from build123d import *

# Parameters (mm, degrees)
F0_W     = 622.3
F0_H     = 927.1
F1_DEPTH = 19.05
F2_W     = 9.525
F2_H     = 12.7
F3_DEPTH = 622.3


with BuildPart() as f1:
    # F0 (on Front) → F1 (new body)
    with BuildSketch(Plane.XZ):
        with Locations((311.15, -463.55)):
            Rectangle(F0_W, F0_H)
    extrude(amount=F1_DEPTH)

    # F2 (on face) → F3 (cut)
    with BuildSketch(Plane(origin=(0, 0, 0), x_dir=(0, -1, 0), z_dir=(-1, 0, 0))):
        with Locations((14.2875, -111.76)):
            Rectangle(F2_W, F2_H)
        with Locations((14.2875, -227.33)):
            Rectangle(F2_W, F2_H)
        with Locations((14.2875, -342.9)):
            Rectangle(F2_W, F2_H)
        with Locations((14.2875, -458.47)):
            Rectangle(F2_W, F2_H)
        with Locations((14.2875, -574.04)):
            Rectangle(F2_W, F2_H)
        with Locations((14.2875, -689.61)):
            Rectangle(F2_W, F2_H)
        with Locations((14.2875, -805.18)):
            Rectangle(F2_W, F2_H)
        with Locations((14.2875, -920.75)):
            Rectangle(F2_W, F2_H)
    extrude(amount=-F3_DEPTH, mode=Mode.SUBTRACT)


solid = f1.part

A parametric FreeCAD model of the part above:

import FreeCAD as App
import Part
import Sketcher
from FreeCAD import Vector
Q = App.Units.Quantity

doc = App.newDocument("Part")
body = doc.addObject("PartDesign::Body", "Body")

sketch1 = body.newObject("Sketcher::SketchObject", "Sketch")
sketch1.AttachmentSupport = (doc.getObject("XZ_Plane"), [""])
sketch1.MapMode = "FlatFace"
sketch1.addGeometry(Part.LineSegment(Vector(0, 0, 0), Vector(0, -927, 0)), False)
sketch1.addGeometry(Part.LineSegment(Vector(0, -927, 0), Vector(622, -927, 0)), False)
sketch1.addGeometry(Part.LineSegment(Vector(622, -927, 0), Vector(622, 0, 0)), False)
sketch1.addGeometry(Part.LineSegment(Vector(622, 0, 0), Vector(0, 0, 0)), False)
sketch1.addConstraint(Sketcher.Constraint("Coincident", 0, 2, 1, 1))
sketch1.addConstraint(Sketcher.Constraint("Coincident", 1, 2, 2, 1))
sketch1.addConstraint(Sketcher.Constraint("Coincident", 2, 2, 3, 1))
sketch1.addConstraint(Sketcher.Constraint("Coincident", 3, 2, 0, 1))
sketch1.addConstraint(Sketcher.Constraint("Vertical", 0))
sketch1.addConstraint(Sketcher.Constraint("Horizontal", 1))
sketch1.addConstraint(Sketcher.Constraint("Vertical", 2))
sketch1.addConstraint(Sketcher.Constraint("Horizontal", 3))
sketch1.addConstraint(Sketcher.Constraint("Coincident", 3, 2, -1, 1))
sketch1.addConstraint(Sketcher.Constraint("DistanceX", 1, 1, 1, 2, Q("24.5 in")))
sketch1.addConstraint(Sketcher.Constraint("DistanceY", 0, 2, 0, 1, Q("36.5 in")))
pad1 = body.newObject("PartDesign::Pad", "Pad")
pad1.Profile = sketch1
pad1.Length = Q("0.75 in")

sketch2 = body.newObject("Sketcher::SketchObject", "Sketch001")
sketch2.AttachmentSupport = (doc.getObject("YZ_Plane"), [""])
sketch2.MapMode = "FlatFace"
sketch2.addGeometry(Part.LineSegment(Vector(-10, -105, 0), Vector(-10, -118, 0)), False)
sketch2.addGeometry(Part.LineSegment(Vector(-10, -118, 0), Vector(-19, -118, 0)), False)
sketch2.addGeometry(Part.LineSegment(Vector(-19, -118, 0), Vector(-19, -105, 0)), False)
sketch2.addGeometry(Part.LineSegment(Vector(-19, -105, 0), Vector(-10, -105, 0)), False)
sketch2.addGeometry(Part.LineSegment(Vector(-10, -221, 0), Vector(-10, -234, 0)), False)
sketch2.addGeometry(Part.LineSegment(Vector(-10, -234, 0), Vector(-19, -234, 0)), False)
sketch2.addGeometry(Part.LineSegment(Vector(-19, -234, 0), Vector(-19, -221, 0)), False)
sketch2.addGeometry(Part.LineSegment(Vector(-19, -221, 0), Vector(-10, -221, 0)), False)
sketch2.addGeometry(Part.LineSegment(Vector(-10, -337, 0), Vector(-10, -349, 0)), False)
sketch2.addGeometry(Part.LineSegment(Vector(-10, -349, 0), Vector(-19, -349, 0)), False)
sketch2.addGeometry(Part.LineSegment(Vector(-19, -349, 0), Vector(-19, -337, 0)), False)
sketch2.addGeometry(Part.LineSegment(Vector(-19, -337, 0), Vector(-10, -337, 0)), False)
sketch2.addGeometry(Part.LineSegment(Vector(-10, -452, 0), Vector(-10, -465, 0)), False)
sketch2.addGeometry(Part.LineSegment(Vector(-10, -465, 0), Vector(-19, -465, 0)), False)
sketch2.addGeometry(Part.LineSegment(Vector(-19, -465, 0), Vector(-19, -452, 0)), False)
sketch2.addGeometry(Part.LineSegment(Vector(-19, -452, 0), Vector(-10, -452, 0)), False)
sketch2.addGeometry(Part.LineSegment(Vector(-10, -568, 0), Vector(-10, -580, 0)), False)
sketch2.addGeometry(Part.LineSegment(Vector(-10, -580, 0), Vector(-19, -580, 0)), False)
sketch2.addGeometry(Part.LineSegment(Vector(-19, -580, 0), Vector(-19, -568, 0)), False)
sketch2.addGeometry(Part.LineSegment(Vector(-19, -568, 0), Vector(-10, -568, 0)), False)
sketch2.addGeometry(Part.LineSegment(Vector(-10, -683, 0), Vector(-10, -696, 0)), False)
sketch2.addGeometry(Part.LineSegment(Vector(-10, -696, 0), Vector(-19, -696, 0)), False)
sketch2.addGeometry(Part.LineSegment(Vector(-19, -696, 0), Vector(-19, -683, 0)), False)
sketch2.addGeometry(Part.LineSegment(Vector(-19, -683, 0), Vector(-10, -683, 0)), False)
sketch2.addGeometry(Part.LineSegment(Vector(-10, -799, 0), Vector(-10, -812, 0)), False)
sketch2.addGeometry(Part.LineSegment(Vector(-10, -812, 0), Vector(-19, -812, 0)), False)
sketch2.addGeometry(Part.LineSegment(Vector(-19, -812, 0), Vector(-19, -799, 0)), False)
sketch2.addGeometry(Part.LineSegment(Vector(-19, -799, 0), Vector(-10, -799, 0)), False)
sketch2.addGeometry(Part.LineSegment(Vector(-10, -914, 0), Vector(-10, -927, 0)), False)
sketch2.addGeometry(Part.LineSegment(Vector(-10, -927, 0), Vector(-19, -927, 0)), False)
sketch2.addGeometry(Part.LineSegment(Vector(-19, -927, 0), Vector(-19, -914, 0)), False)
sketch2.addGeometry(Part.LineSegment(Vector(-19, -914, 0), Vector(-10, -914, 0)), False)
sketch2.addConstraint(Sketcher.Constraint("Coincident", 0, 2, 1, 1))
sketch2.addConstraint(Sketcher.Constraint("Coincident", 1, 2, 2, 1))
sketch2.addConstraint(Sketcher.Constraint("Coincident", 2, 2, 3, 1))
sketch2.addConstraint(Sketcher.Constraint("Coincident", 3, 2, 0, 1))
sketch2.addConstraint(Sketcher.Constraint("Coincident", 4, 2, 5, 1))
sketch2.addConstraint(Sketcher.Constraint("Coincident", 5, 2, 6, 1))
sketch2.addConstraint(Sketcher.Constraint("Coincident", 6, 2, 7, 1))
sketch2.addConstraint(Sketcher.Constraint("Coincident", 7, 2, 4, 1))
sketch2.addConstraint(Sketcher.Constraint("Coincident", 8, 2, 9, 1))
sketch2.addConstraint(Sketcher.Constraint("Coincident", 9, 2, 10, 1))
sketch2.addConstraint(Sketcher.Constraint("Coincident", 10, 2, 11, 1))
sketch2.addConstraint(Sketcher.Constraint("Coincident", 11, 2, 8, 1))
sketch2.addConstraint(Sketcher.Constraint("Coincident", 12, 2, 13, 1))
sketch2.addConstraint(Sketcher.Constraint("Coincident", 13, 2, 14, 1))
sketch2.addConstraint(Sketcher.Constraint("Coincident", 14, 2, 15, 1))
sketch2.addConstraint(Sketcher.Constraint("Coincident", 15, 2, 12, 1))
sketch2.addConstraint(Sketcher.Constraint("Coincident", 16, 2, 17, 1))
sketch2.addConstraint(Sketcher.Constraint("Coincident", 17, 2, 18, 1))
sketch2.addConstraint(Sketcher.Constraint("Coincident", 18, 2, 19, 1))
sketch2.addConstraint(Sketcher.Constraint("Coincident", 19, 2, 16, 1))
sketch2.addConstraint(Sketcher.Constraint("Coincident", 20, 2, 21, 1))
sketch2.addConstraint(Sketcher.Constraint("Coincident", 21, 2, 22, 1))
sketch2.addConstraint(Sketcher.Constraint("Coincident", 22, 2, 23, 1))
sketch2.addConstraint(Sketcher.Constraint("Coincident", 23, 2, 20, 1))
sketch2.addConstraint(Sketcher.Constraint("Coincident", 24, 2, 25, 1))
sketch2.addConstraint(Sketcher.Constraint("Coincident", 25, 2, 26, 1))
sketch2.addConstraint(Sketcher.Constraint("Coincident", 26, 2, 27, 1))
sketch2.addConstraint(Sketcher.Constraint("Coincident", 27, 2, 24, 1))
sketch2.addConstraint(Sketcher.Constraint("Coincident", 28, 2, 29, 1))
sketch2.addConstraint(Sketcher.Constraint("Coincident", 29, 2, 30, 1))
sketch2.addConstraint(Sketcher.Constraint("Coincident", 30, 2, 31, 1))
sketch2.addConstraint(Sketcher.Constraint("Coincident", 31, 2, 28, 1))
sketch2.addConstraint(Sketcher.Constraint("Vertical", 0))
sketch2.addConstraint(Sketcher.Constraint("Horizontal", 1))
sketch2.addConstraint(Sketcher.Constraint("Vertical", 2))
sketch2.addConstraint(Sketcher.Constraint("Horizontal", 3))
sketch2.addConstraint(Sketcher.Constraint("Vertical", 4))
sketch2.addConstraint(Sketcher.Constraint("Horizontal", 5))
sketch2.addConstraint(Sketcher.Constraint("Vertical", 6))
sketch2.addConstraint(Sketcher.Constraint("Horizontal", 7))
sketch2.addConstraint(Sketcher.Constraint("Vertical", 8))
sketch2.addConstraint(Sketcher.Constraint("Horizontal", 9))
sketch2.addConstraint(Sketcher.Constraint("Vertical", 10))
sketch2.addConstraint(Sketcher.Constraint("Horizontal", 11))
sketch2.addConstraint(Sketcher.Constraint("Vertical", 12))
sketch2.addConstraint(Sketcher.Constraint("Horizontal", 13))
sketch2.addConstraint(Sketcher.Constraint("Vertical", 14))
sketch2.addConstraint(Sketcher.Constraint("Horizontal", 15))
sketch2.addConstraint(Sketcher.Constraint("Vertical", 16))
sketch2.addConstraint(Sketcher.Constraint("Horizontal", 17))
sketch2.addConstraint(Sketcher.Constraint("Vertical", 18))
sketch2.addConstraint(Sketcher.Constraint("Horizontal", 19))
sketch2.addConstraint(Sketcher.Constraint("Vertical", 20))
sketch2.addConstraint(Sketcher.Constraint("Horizontal", 21))
sketch2.addConstraint(Sketcher.Constraint("Vertical", 22))
sketch2.addConstraint(Sketcher.Constraint("Horizontal", 23))
sketch2.addConstraint(Sketcher.Constraint("Vertical", 24))
sketch2.addConstraint(Sketcher.Constraint("Horizontal", 25))
sketch2.addConstraint(Sketcher.Constraint("Vertical", 26))
sketch2.addConstraint(Sketcher.Constraint("Horizontal", 27))
sketch2.addConstraint(Sketcher.Constraint("Vertical", 28))
sketch2.addConstraint(Sketcher.Constraint("Horizontal", 29))
sketch2.addConstraint(Sketcher.Constraint("Vertical", 30))
sketch2.addConstraint(Sketcher.Constraint("Horizontal", 31))
sketch2.addConstraint(Sketcher.Constraint("Vertical", 3, 2, 4, 2))
sketch2.addConstraint(Sketcher.Constraint("Vertical", 2, 2, 5, 2))
sketch2.addConstraint(Sketcher.Constraint("Vertical", 7, 2, 8, 2))
sketch2.addConstraint(Sketcher.Constraint("Vertical", 6, 2, 9, 2))
sketch2.addConstraint(Sketcher.Constraint("Vertical", 11, 2, 12, 2))
sketch2.addConstraint(Sketcher.Constraint("Vertical", 10, 2, 13, 2))
sketch2.addConstraint(Sketcher.Constraint("Vertical", 15, 2, 16, 2))
sketch2.addConstraint(Sketcher.Constraint("Vertical", 14, 2, 17, 2))
sketch2.addConstraint(Sketcher.Constraint("Vertical", 19, 2, 20, 2))
sketch2.addConstraint(Sketcher.Constraint("Vertical", 18, 2, 21, 2))
sketch2.addConstraint(Sketcher.Constraint("Vertical", 23, 2, 24, 2))
sketch2.addConstraint(Sketcher.Constraint("Vertical", 22, 2, 25, 2))
sketch2.addConstraint(Sketcher.Constraint("Vertical", 27, 2, 28, 2))
sketch2.addConstraint(Sketcher.Constraint("Vertical", 26, 2, 29, 2))
sketch2.addConstraint(Sketcher.Constraint("Equal", 2, 4))
sketch2.addConstraint(Sketcher.Constraint("Equal", 6, 8))
sketch2.addConstraint(Sketcher.Constraint("Equal", 10, 12))
sketch2.addConstraint(Sketcher.Constraint("Equal", 14, 16))
sketch2.addConstraint(Sketcher.Constraint("Equal", 18, 20))
sketch2.addConstraint(Sketcher.Constraint("Equal", 22, 24))
sketch2.addConstraint(Sketcher.Constraint("Equal", 26, 28))
sketch2.addConstraint(Sketcher.Constraint("DistanceY", 0, 2, 0, 1, Q("0.5 in")))
sketch2.addConstraint(Sketcher.Constraint("DistanceY", 30, 2, -1, 1, Q("36 in")))
sketch2.addConstraint(Sketcher.Constraint("DistanceY", 4, 2, -1, 1, Q("9.2 in")))
sketch2.addConstraint(Sketcher.Constraint("DistanceY", 12, 2, -1, 1, Q("18.3 in")))
sketch2.addConstraint(Sketcher.Constraint("DistanceY", 20, 2, -1, 1, Q("27.4 in")))
sketch2.addConstraint(Sketcher.Constraint("DistanceY", 8, 2, 0, 2, Q("9.1 in")))
sketch2.addConstraint(Sketcher.Constraint("DistanceY", 16, 2, 8, 2, Q("9.1 in")))
sketch2.addConstraint(Sketcher.Constraint("DistanceY", 24, 2, 16, 2, Q("9.1 in")))
sketch2.addConstraint(Sketcher.Constraint("DistanceX", 1, 2, 1, 1, Q("0.375 in")))
sketch2.addConstraint(Sketcher.Constraint("DistanceY", 0, 2, -1, 1, Q("4.65 in")))
sketch2.addConstraint(Sketcher.Constraint("DistanceX", 1, 2, -1, 1, Q("0.75 in")))
pocket1 = body.newObject("PartDesign::Pocket", "Pocket")
pocket1.Profile = sketch2
pocket1.Length = Q("24.5 in")
pocket1.Reversed = True

doc.recompute()
